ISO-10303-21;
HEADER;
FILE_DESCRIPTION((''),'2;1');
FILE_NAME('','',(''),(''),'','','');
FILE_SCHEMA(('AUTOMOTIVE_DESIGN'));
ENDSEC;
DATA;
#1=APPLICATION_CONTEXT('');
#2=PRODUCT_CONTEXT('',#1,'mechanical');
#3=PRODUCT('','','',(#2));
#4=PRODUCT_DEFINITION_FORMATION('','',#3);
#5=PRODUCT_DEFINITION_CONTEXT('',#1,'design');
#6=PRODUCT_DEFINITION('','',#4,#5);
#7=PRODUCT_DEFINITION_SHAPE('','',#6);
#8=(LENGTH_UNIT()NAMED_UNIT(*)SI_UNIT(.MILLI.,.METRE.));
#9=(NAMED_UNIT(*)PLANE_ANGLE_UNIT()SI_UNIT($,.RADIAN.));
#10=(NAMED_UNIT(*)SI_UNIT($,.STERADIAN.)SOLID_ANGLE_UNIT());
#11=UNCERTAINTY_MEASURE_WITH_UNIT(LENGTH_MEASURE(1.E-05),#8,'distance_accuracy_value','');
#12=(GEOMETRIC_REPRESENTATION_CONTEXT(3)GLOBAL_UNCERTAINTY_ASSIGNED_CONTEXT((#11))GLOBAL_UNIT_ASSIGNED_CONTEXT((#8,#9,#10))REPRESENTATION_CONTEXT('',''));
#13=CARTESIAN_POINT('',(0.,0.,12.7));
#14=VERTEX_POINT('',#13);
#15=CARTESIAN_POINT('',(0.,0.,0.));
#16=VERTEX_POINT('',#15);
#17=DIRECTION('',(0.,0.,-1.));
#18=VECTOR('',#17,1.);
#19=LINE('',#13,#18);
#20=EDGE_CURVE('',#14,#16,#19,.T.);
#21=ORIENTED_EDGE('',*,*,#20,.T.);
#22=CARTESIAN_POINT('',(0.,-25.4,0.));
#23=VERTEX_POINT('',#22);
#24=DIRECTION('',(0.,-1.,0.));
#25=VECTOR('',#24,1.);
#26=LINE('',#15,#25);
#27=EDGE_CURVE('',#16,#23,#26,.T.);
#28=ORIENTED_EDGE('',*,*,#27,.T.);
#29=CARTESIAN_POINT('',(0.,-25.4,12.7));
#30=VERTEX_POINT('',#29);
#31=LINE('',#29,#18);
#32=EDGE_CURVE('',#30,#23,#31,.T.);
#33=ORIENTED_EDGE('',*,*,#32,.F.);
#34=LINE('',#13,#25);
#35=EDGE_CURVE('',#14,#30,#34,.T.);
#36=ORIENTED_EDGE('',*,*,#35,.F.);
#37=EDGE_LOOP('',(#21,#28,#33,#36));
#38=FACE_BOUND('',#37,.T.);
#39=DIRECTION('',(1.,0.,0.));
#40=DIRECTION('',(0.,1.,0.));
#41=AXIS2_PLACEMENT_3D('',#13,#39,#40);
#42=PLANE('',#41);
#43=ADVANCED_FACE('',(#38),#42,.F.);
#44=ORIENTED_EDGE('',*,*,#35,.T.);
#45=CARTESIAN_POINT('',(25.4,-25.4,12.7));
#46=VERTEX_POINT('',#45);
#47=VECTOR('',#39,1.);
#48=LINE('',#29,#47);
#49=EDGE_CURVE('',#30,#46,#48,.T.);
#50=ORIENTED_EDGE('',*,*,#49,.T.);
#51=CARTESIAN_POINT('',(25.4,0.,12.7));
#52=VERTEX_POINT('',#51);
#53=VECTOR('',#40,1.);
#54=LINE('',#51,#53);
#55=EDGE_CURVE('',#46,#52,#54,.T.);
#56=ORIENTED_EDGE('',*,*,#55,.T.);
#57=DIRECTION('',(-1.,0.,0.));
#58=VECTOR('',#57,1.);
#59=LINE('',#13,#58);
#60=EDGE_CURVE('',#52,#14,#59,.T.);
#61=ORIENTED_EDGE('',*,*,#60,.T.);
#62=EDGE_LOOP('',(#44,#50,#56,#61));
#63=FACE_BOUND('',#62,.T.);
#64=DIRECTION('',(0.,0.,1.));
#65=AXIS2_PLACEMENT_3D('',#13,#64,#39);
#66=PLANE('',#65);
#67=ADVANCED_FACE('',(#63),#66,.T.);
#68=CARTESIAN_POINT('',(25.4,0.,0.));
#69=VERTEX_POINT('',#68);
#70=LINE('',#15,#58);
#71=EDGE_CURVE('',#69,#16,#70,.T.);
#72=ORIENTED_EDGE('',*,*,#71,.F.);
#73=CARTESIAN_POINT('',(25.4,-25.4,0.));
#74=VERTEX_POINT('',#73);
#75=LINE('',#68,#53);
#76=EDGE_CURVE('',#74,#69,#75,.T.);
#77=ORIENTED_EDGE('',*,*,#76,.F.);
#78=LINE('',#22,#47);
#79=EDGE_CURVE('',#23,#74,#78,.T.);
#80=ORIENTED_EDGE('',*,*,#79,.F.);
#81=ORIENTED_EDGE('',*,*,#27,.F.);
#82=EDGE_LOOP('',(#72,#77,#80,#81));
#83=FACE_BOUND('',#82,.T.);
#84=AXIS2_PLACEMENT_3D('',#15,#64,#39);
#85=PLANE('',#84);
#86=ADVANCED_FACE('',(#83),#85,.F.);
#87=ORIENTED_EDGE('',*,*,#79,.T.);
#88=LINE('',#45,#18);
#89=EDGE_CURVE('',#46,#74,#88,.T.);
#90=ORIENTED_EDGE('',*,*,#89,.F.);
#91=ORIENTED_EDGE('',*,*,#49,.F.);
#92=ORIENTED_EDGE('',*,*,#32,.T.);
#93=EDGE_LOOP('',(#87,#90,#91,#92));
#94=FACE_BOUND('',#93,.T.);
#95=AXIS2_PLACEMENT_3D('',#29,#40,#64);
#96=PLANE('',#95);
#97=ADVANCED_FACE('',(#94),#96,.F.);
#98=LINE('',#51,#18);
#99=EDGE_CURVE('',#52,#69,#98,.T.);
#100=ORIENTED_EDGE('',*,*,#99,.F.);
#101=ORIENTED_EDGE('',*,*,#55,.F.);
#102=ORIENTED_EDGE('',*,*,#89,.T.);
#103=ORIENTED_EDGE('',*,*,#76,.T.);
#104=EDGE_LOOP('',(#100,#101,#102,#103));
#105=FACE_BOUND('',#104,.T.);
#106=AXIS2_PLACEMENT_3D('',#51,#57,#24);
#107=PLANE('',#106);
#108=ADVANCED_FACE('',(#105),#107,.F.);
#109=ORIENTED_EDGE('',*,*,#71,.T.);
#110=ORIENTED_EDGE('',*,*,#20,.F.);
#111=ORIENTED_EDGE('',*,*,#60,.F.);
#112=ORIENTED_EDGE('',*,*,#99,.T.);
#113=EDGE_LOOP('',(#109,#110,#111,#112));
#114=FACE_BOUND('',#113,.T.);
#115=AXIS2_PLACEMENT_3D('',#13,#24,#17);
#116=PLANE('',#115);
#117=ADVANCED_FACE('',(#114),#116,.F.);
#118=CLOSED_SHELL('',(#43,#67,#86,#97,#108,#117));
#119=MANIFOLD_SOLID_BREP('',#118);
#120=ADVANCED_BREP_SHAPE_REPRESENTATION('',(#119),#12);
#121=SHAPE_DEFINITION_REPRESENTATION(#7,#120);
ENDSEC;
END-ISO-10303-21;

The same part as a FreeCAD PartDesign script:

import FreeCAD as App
import Part
import Sketcher
Q = App.Units.Quantity

doc = App.newDocument("Part")
body = doc.addObject("PartDesign::Body", "Body")

# Sketch on XY plane
sketch1 = doc.addObject("Sketcher::SketchObject", "Sketch")
body.addObject(sketch1)
sketch1.AttachmentSupport = (doc.XY_Plane, [""])
sketch1.MapMode = "FlatFace"
sketch1.addGeometry([
    Part.LineSegment(App.Vector(0, 0, 0), App.Vector(0, -25.4, 0)),
    Part.LineSegment(App.Vector(0, -25.4, 0), App.Vector(25.4, -25.4, 0)),
    Part.LineSegment(App.Vector(25.4, -25.4, 0), App.Vector(25.4, 0, 0)),
    Part.LineSegment(App.Vector(25.4, 0, 0), App.Vector(0, 0, 0)),
], False)
sketch1.addConstraint([
    Sketcher.Constraint("Coincident", 0, 2, 1, 1),
    Sketcher.Constraint("Coincident", 1, 2, 2, 1),
    Sketcher.Constraint("Coincident", 2, 2, 3, 1),
    Sketcher.Constraint("Coincident", 3, 2, 0, 1),
    Sketcher.Constraint("Vertical", 0),
    Sketcher.Constraint("Horizontal", 1),
    Sketcher.Constraint("Vertical", 2),
    Sketcher.Constraint("Horizontal", 3),
    Sketcher.Constraint("Coincident", 3, 2, -1, 1),
    Sketcher.Constraint("Equal", 3, 0),
    Sketcher.Constraint("DistanceX", 1, 1, 1, 2, Q("1 in")),
])
pad1 = doc.addObject("PartDesign::Pad", "Pad")
body.addObject(pad1)
pad1.Profile = sketch1
pad1.Length = Q("0.5 in")

doc.recompute()
